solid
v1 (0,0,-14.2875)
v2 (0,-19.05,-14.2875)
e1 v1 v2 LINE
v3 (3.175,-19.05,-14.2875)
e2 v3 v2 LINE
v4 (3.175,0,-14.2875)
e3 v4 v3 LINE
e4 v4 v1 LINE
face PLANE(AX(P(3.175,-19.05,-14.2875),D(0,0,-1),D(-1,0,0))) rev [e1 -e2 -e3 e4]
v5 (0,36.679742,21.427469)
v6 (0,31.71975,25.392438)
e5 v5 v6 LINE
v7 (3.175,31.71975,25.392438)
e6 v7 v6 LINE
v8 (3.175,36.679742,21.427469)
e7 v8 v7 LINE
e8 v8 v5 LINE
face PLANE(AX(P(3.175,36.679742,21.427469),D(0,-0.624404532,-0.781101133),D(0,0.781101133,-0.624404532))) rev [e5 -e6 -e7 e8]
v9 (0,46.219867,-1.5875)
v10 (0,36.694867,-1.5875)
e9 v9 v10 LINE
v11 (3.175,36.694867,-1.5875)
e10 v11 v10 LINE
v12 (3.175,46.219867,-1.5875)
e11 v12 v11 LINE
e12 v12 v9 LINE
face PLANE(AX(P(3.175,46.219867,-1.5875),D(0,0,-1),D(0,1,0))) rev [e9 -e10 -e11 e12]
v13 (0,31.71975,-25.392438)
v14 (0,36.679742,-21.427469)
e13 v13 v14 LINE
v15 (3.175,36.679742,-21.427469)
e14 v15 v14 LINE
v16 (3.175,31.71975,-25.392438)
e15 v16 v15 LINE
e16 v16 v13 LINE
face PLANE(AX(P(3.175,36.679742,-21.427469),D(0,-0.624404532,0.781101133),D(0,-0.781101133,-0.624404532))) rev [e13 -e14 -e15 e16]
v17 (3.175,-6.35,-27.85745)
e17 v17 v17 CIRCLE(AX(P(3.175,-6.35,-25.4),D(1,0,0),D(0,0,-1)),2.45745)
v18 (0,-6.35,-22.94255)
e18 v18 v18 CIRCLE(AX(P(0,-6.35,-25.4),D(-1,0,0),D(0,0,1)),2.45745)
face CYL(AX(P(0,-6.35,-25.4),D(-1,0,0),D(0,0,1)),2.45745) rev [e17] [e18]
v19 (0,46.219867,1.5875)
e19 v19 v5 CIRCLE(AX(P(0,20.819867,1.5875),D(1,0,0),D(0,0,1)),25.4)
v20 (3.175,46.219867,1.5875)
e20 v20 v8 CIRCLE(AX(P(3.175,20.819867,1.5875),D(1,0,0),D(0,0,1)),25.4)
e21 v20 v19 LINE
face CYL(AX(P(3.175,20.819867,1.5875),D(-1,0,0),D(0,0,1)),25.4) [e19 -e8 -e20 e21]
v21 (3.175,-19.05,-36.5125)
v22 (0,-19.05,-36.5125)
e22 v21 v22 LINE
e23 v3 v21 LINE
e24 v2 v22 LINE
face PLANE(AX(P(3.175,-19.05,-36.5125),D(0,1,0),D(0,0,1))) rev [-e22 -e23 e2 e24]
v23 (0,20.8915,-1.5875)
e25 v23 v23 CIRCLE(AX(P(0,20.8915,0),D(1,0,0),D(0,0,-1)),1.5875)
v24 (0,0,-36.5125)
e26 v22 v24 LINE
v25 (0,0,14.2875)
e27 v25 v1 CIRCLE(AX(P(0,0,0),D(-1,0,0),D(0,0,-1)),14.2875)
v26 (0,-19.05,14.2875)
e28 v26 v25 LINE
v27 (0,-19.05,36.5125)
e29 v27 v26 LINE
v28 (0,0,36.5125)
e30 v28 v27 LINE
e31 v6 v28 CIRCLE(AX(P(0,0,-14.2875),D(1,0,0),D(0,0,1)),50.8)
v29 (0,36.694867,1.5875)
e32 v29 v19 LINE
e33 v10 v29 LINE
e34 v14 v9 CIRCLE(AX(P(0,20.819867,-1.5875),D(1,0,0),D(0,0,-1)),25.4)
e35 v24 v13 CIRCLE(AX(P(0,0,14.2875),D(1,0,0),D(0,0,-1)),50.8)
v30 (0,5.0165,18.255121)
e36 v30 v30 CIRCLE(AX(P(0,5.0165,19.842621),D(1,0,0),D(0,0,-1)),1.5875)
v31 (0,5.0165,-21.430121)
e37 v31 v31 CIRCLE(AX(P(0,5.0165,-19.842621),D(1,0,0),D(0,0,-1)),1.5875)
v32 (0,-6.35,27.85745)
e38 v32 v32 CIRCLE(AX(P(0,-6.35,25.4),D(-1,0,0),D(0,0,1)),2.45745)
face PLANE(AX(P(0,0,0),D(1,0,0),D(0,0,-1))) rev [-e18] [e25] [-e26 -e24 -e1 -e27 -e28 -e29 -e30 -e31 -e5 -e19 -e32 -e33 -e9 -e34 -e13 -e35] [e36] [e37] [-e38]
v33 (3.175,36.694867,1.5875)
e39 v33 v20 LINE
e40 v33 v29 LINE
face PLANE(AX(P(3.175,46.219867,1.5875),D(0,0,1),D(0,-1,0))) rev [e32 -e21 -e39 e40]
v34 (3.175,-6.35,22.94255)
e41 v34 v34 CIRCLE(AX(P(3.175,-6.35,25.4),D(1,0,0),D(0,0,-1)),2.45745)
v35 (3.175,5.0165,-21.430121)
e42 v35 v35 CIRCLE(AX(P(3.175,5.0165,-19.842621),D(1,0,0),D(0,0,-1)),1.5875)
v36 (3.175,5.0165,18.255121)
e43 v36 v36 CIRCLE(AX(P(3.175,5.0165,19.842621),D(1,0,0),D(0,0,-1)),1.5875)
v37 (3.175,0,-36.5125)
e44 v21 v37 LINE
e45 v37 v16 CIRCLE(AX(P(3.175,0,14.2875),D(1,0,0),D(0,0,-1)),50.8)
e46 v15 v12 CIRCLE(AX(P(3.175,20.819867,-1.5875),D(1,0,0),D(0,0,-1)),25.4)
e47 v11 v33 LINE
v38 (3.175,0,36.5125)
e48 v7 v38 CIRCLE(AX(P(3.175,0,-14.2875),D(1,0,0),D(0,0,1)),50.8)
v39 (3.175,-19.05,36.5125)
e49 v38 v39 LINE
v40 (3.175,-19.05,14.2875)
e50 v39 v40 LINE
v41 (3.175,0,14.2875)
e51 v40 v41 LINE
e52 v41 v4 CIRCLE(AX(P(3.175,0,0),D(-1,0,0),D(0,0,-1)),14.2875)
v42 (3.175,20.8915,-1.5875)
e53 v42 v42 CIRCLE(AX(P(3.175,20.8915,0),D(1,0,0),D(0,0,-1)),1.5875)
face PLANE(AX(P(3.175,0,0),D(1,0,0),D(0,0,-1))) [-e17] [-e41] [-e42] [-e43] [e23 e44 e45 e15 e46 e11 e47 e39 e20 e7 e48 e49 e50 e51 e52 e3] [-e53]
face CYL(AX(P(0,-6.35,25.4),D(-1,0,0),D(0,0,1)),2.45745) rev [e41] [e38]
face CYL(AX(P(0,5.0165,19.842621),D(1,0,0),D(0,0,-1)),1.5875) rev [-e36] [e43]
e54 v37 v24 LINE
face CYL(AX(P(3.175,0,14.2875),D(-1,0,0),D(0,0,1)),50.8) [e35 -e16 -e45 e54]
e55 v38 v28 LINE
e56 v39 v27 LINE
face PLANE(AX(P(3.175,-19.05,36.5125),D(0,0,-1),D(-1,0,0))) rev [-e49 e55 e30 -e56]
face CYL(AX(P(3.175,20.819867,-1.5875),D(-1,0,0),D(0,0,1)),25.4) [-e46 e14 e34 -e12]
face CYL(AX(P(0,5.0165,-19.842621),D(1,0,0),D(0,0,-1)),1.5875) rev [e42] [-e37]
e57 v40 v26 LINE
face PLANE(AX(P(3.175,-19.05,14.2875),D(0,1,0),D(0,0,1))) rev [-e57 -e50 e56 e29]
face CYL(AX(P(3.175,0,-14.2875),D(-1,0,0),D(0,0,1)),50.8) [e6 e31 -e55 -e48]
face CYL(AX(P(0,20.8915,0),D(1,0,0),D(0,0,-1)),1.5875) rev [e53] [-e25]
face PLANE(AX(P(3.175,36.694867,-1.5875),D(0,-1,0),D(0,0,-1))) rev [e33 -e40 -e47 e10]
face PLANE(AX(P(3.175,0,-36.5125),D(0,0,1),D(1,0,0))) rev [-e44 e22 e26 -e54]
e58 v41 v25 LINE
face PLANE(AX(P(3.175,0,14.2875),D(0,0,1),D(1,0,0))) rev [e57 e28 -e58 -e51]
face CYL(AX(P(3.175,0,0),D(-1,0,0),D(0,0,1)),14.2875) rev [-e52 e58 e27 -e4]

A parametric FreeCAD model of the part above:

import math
import FreeCAD as App
import Part
import Sketcher
from FreeCAD import Vector
Q = App.Units.Quantity

doc = App.newDocument("Part")
body = doc.addObject("PartDesign::Body", "Body")

# Sketch on YZ plane
sketch1 = doc.addObject("Sketcher::SketchObject", "Sketch")
body.addObject(sketch1)
sketch1.AttachmentSupport = (doc.YZ_Plane, [""])
sketch1.MapMode = "FlatFace"
sketch1.addGeometry([
    Part.LineSegment(Vector(46.2, -1.6, 0), Vector(36.7, -1.6, 0)),  # 0
    Part.LineSegment(Vector(36.7, -1.6, 0), Vector(36.7, 1.6, 0)),  # 1
    Part.LineSegment(Vector(36.7, 1.6, 0), Vector(46.2, 1.6, 0)),  # 2
    Part.ArcOfCircle(Part.Circle(Vector(20.8, 1.6, 0), Vector(0, 0, 1), 25.4), math.radians(0), math.radians(51)),  # 3
    Part.LineSegment(Vector(36.7, 21.4, 0), Vector(31.7, 25.4, 0)),  # 4
    Part.ArcOfCircle(Part.Circle(Vector(0, -14.3, 0), Vector(0, 0, 1), 50.8), math.radians(51), math.radians(90)),  # 5
    Part.LineSegment(Vector(0, 36.5, 0), Vector(-19.1, 36.5, 0)),  # 6
    Part.LineSegment(Vector(-19.1, 36.5, 0), Vector(-19.1, 14.3, 0)),  # 7
    Part.LineSegment(Vector(-19.1, 14.3, 0), Vector(0, 14.3, 0)),  # 8
    Part.ArcOfCircle(Part.Circle(Vector(0, 0, 0), Vector(0, 0, 1), 14.3), math.radians(-90), math.radians(90)),  # 9
    Part.LineSegment(Vector(0, -14.3, 0), Vector(-19.1, -14.3, 0)),  # 10
    Part.LineSegment(Vector(-19.1, -14.3, 0), Vector(-19.1, -36.5, 0)),  # 11
    Part.LineSegment(Vector(-19.1, -36.5, 0), Vector(0, -36.5, 0)),  # 12
    Part.ArcOfCircle(Part.Circle(Vector(0, 14.3, 0), Vector(0, 0, 1), 50.8), math.radians(-90), math.radians(-51)),  # 13
    Part.LineSegment(Vector(31.7, -25.4, 0), Vector(36.7, -21.4, 0)),  # 14
    Part.ArcOfCircle(Part.Circle(Vector(20.8, -1.6, 0), Vector(0, 0, 1), 25.4), math.radians(-51), math.radians(0)),  # 15
], False)
sketch1.addConstraint([
    Sketcher.Constraint("Coincident", 0, 2, 1, 1),
    Sketcher.Constraint("Coincident", 1, 2, 2, 1),
    Sketcher.Constraint("Coincident", 2, 2, 3, 1),
    Sketcher.Constraint("Tangent", 3, 2, 4, 1),
    Sketcher.Constraint("Tangent", 4, 2, 5, 1),
    Sketcher.Constraint("Tangent", 5, 2, 6, 1),
    Sketcher.Constraint("Coincident", 6, 2, 7, 1),
    Sketcher.Constraint("Coincident", 7, 2, 8, 1),
    Sketcher.Constraint("Tangent", 8, 2, 9, 2),
    Sketcher.Constraint("Tangent", 9, 1, 10, 1),
    Sketcher.Constraint("Coincident", 10, 2, 11, 1),
    Sketcher.Constraint("Coincident", 11, 2, 12, 1),
    Sketcher.Constraint("Tangent", 12, 2, 13, 1),
    Sketcher.Constraint("Tangent", 13, 2, 14, 1),
    Sketcher.Constraint("Tangent", 14, 2, 15, 1),
    Sketcher.Constraint("Coincident", 15, 2, 0, 1),
    Sketcher.Constraint("Horizontal", 0),
    Sketcher.Constraint("Vertical", 1),
    Sketcher.Constraint("Horizontal", 2),
    Sketcher.Constraint("Horizontal", 6),
    Sketcher.Constraint("Vertical", 7),
    Sketcher.Constraint("Horizontal", 8),
    Sketcher.Constraint("Horizontal", 10),
    Sketcher.Constraint("Vertical", 11),
    Sketcher.Constraint("Horizontal", 12),
    Sketcher.Constraint("Coincident", 9, 3, -1, 1),
    Sketcher.Constraint("Coincident", 8, 2, 13, 3),
    Sketcher.Constraint("Coincident", 9, 1, 5, 3),
    Sketcher.Constraint("Equal", 5, 13),
    Sketcher.Constraint("Equal", 3, 15),
    Sketcher.Constraint("Symmetric", 3, 3, 15, 3, -1),
    Sketcher.Constraint("Horizontal", 15, 3, 0, 2),
    Sketcher.Constraint("Horizontal", 3, 3, 1, 2),
    Sketcher.Constraint("Vertical", 7, 2, 10, 2),
    Sketcher.Constraint("Radius", 3, Q("1 in")),
    Sketcher.Constraint("Radius", 5, Q("2 in")),
    Sketcher.Constraint("Radius", 9, Q("0.5625 in")),
    Sketcher.Constraint("DistanceX", 6, 2, 6, 1, Q("0.75 in")),
    Sketcher.Constraint("DistanceY", 3, 3, 13, 3, Q("0.5 in")),
    Sketcher.Constraint("Distance", 4, Q("0.25 in")),
    Sketcher.Constraint("DistanceX", 0, 2, 0, 1, Q("0.375 in")),
])
pad1 = doc.addObject("PartDesign::Pad", "Pad")
body.addObject(pad1)
pad1.Profile = sketch1
pad1.Length = Q("0.125 in")

# Sketch on YZ plane
sketch2 = doc.addObject("Sketcher::SketchObject", "Sketch001")
body.addObject(sketch2)
sketch2.AttachmentSupport = (doc.YZ_Plane, [""])
sketch2.MapMode = "FlatFace"
sketch2.addGeometry([
    Part.Circle(Vector(-6.3, -25.4, 0), Vector(0, 0, 1), 2.5),
    Part.Circle(Vector(-6.3, 25.4, 0), Vector(0, 0, 1), 2.5),
], False)
sketch2.addConstraint([
    Sketcher.Constraint("Equal", 0, 1),
    Sketcher.Constraint("Symmetric", 0, 3, 1, 3, -1),
    Sketcher.Constraint("DistanceY", 0, 3, -1, 1, Q("1 in")),
    Sketcher.Constraint("Diameter", 0, Q("0.1935 in")),
    Sketcher.Constraint("DistanceX", 0, 3, -1, 1, Q("0.25 in")),
])
doc.recompute()
hole = doc.addObject("PartDesign::Hole", "Hole")
body.addObject(hole)
hole.Profile = sketch2
hole.ThreadType = "None"
hole.Diameter = Q("0.1935 in")
hole.DepthType = "Dimension"
hole.Depth = 19.001994
hole.DrillPoint = "Angled"
hole.DrillPointAngle = 118
hole.Reversed = True

# Sketch on YZ plane
sketch3 = doc.addObject("Sketcher::SketchObject", "Sketch002")
body.addObject(sketch3)
sketch3.AttachmentSupport = (doc.YZ_Plane, [""])
sketch3.MapMode = "FlatFace"
sketch3.AttachmentOffset = App.Placement(Vector(0, 0, 0.125 * 25.4), App.Rotation())
sketch3.addGeometry([
    Part.Circle(Vector(5, 19.8, 0), Vector(0, 0, 1), 1.6),
    Part.Circle(Vector(20.9, 0, 0), Vector(0, 0, 1), 1.6),
    Part.Circle(Vector(5, -19.8, 0), Vector(0, 0, 1), 1.6),
], False)
sketch3.addConstraint([
    Sketcher.Constraint("Equal", 0, 1),
    Sketcher.Constraint("Equal", 1, 2),
    Sketcher.Constraint("Symmetric", 0, 3, 2, 3, -1),
    Sketcher.Constraint("PointOnObject", 1, 3, -1),
    Sketcher.Constraint("Diameter", 0, Q("0.125 in")),
    Sketcher.Constraint("DistanceX", 0, 3, 1, 3, Q("0.625 in")),
    Sketcher.Constraint("DistanceX", -1, 1, 0, 3, Q("0.1975 in")),
    Sketcher.Constraint("DistanceY", -1, 1, 0, 3, 19.842621),
])
pocket1 = doc.addObject("PartDesign::Pocket", "Pocket")
body.addObject(pocket1)
pocket1.Profile = sketch3
pocket1.Type = "ThroughAll"

doc.recompute()
